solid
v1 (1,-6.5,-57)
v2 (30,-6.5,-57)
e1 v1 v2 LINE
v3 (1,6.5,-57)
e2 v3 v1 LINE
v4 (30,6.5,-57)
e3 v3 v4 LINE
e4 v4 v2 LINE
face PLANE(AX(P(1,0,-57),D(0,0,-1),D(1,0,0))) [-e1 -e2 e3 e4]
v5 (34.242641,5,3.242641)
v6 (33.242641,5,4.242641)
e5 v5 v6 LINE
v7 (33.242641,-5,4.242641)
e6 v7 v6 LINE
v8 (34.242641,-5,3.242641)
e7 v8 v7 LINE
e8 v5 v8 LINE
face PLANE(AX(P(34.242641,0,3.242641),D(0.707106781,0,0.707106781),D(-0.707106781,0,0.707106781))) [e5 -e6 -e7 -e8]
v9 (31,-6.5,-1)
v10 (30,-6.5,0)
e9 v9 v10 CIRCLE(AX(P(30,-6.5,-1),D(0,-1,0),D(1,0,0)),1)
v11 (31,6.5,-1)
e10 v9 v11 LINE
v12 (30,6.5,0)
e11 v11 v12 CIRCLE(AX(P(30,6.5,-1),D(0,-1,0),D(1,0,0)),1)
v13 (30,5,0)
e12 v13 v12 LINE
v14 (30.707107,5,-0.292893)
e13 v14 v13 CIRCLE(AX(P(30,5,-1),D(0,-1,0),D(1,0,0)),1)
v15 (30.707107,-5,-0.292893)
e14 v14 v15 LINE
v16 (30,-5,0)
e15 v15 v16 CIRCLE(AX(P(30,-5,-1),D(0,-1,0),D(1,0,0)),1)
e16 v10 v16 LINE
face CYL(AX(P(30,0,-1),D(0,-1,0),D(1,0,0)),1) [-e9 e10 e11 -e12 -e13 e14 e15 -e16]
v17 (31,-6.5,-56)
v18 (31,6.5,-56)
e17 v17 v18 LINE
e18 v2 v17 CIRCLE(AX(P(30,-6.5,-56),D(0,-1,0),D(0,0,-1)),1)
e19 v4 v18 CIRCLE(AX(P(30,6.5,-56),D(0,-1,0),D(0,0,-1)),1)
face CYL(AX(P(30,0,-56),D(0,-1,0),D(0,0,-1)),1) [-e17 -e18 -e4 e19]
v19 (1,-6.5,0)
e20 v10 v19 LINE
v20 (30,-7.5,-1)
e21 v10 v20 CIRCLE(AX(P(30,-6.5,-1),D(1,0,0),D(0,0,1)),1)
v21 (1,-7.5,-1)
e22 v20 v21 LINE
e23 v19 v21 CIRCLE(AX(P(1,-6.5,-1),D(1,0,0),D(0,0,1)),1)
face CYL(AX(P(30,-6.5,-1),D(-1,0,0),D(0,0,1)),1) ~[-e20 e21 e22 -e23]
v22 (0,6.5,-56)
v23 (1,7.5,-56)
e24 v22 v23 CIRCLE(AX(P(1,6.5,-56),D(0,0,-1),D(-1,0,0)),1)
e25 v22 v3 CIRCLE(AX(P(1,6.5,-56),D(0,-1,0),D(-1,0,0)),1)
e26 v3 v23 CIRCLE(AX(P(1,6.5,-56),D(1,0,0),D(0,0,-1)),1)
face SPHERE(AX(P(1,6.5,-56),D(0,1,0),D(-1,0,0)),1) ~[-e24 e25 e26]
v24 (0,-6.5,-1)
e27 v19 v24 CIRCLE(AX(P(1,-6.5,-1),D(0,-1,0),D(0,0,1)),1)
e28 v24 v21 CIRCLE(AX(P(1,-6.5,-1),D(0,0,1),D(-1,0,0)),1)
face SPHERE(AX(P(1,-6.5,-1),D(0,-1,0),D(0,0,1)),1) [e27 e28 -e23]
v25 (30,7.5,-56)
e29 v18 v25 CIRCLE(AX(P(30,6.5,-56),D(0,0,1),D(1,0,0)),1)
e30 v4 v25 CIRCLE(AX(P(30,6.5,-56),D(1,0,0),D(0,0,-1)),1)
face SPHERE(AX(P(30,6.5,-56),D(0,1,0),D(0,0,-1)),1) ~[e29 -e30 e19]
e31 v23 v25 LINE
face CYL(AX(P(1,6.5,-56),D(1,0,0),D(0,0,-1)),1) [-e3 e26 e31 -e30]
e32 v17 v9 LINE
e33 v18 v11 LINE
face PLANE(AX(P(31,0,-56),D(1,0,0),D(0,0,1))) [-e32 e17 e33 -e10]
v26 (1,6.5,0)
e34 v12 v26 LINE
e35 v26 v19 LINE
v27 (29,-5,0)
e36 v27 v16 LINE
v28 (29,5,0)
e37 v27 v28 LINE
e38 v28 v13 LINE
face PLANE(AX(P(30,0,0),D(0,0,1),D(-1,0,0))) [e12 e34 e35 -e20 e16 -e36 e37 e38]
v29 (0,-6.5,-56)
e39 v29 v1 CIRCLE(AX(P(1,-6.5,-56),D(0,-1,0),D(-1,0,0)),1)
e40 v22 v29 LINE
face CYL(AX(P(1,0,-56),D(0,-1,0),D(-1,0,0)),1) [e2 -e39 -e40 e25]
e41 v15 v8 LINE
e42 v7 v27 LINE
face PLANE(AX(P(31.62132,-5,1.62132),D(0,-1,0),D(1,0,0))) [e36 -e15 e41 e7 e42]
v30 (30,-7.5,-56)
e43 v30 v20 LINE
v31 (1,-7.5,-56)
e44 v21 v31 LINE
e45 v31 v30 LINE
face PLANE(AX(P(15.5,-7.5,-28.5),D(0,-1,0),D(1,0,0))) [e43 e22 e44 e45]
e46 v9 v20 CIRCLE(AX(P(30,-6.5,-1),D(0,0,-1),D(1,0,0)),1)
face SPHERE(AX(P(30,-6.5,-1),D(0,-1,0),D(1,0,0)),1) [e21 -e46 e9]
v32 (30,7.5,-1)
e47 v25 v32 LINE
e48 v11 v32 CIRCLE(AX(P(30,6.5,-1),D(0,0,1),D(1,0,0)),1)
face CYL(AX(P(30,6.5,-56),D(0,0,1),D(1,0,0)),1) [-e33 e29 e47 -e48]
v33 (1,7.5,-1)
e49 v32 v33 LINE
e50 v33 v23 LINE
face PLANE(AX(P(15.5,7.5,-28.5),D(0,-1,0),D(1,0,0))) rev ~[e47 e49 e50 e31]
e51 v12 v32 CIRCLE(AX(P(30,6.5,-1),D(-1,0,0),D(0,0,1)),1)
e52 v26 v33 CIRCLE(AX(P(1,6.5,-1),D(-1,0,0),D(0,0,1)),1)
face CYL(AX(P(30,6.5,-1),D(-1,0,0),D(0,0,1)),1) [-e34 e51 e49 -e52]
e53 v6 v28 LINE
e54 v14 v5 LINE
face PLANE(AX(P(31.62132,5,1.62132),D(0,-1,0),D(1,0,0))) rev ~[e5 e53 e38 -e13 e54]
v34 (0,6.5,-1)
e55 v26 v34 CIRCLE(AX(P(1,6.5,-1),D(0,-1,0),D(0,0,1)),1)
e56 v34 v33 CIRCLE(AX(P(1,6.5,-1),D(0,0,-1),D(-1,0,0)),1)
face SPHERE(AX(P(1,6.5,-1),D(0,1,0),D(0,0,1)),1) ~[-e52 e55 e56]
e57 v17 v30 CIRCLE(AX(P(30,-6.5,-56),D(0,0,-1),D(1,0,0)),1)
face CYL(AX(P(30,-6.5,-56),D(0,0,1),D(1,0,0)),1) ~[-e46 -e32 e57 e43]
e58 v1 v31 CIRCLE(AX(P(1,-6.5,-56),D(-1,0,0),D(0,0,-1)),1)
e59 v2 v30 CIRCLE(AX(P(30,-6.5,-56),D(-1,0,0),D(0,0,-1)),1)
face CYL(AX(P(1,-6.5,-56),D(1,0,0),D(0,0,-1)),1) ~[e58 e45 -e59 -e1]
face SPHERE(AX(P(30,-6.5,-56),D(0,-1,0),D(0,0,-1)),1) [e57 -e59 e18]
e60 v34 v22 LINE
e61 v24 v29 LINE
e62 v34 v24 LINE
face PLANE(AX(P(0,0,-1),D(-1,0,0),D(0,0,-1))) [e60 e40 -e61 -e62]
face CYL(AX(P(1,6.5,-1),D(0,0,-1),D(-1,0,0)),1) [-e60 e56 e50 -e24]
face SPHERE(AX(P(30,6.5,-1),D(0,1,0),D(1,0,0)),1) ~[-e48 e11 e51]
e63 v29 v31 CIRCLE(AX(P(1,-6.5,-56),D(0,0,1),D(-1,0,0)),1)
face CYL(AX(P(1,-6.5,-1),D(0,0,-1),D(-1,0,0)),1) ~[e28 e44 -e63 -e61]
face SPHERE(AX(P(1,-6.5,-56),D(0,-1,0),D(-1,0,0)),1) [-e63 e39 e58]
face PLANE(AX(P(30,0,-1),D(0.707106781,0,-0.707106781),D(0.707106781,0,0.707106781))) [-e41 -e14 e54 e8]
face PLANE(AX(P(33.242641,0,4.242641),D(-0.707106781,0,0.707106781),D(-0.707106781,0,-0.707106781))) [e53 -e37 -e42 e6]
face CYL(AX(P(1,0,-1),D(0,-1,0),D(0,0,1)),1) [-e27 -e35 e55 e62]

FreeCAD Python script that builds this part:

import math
import FreeCAD as App
import Part
import Sketcher
Q = App.Units.Quantity


def edges_at(feature, points):
    """Names of the edges that pass closest to the given points."""
    edges = feature.Shape.Edges
    near = lambda p: min(range(len(edges)), key=lambda i: edges[i].distToShape(Part.Vertex(*p))[0])
    return sorted({f"Edge{near(p) + 1}" for p in points})


def add_polygon(sketch, points):
    """Adds a closed chain of lines whose ends are joined by coincident constraints."""
    first, n = sketch.GeometryCount, len(points)
    for a, b in zip(points, points[1:] + points[:1]):
        sketch.addGeometry(Part.LineSegment(App.Vector(*a, 0), App.Vector(*b, 0)), False)
    for i in range(n):
        sketch.addConstraint(Sketcher.Constraint("Coincident", first + i, 2, first + (i + 1) % n, 1))

doc = App.newDocument("Part")
params = doc.addObject("Spreadsheet::Sheet", "Params")
for row, (alias, value) in enumerate([
    ("sketch1_radius", "1 mm"),
    ("sketch1_width", "29 mm"),
    ("sketch1_height", "55 mm"),
    ("pad1_length", "15 mm"),
    ("fillet_radius", "1 mm"),
    ("sketch2_length", "6 mm"),
    ("pad2_length", "10 mm"),
], start=1):
    params.set(f"A{row}", alias)
    params.set(f"B{row}", "=" + value)
    params.setAlias(f"B{row}", alias)

body = doc.addObject("PartDesign::Body", "Body")

sketch1 = body.newObject("Sketcher::SketchObject", "Sketch")
sketch1.AttachmentSupport = (doc.getObject("XZ_Plane"), [""])
sketch1.MapMode = "FlatFace"
sketch1.addGeometry(Part.LineSegment(App.Vector(30, 0, 0), App.Vector(1, 0, 0)), False)
sketch1.addGeometry(Part.ArcOfCircle(Part.Circle(App.Vector(1, -1, 0), App.Vector(0, 0, 1), 1), math.radians(90), math.radians(180)), False)
sketch1.addGeometry(Part.LineSegment(App.Vector(0, -1, 0), App.Vector(0, -56, 0)), False)
sketch1.addGeometry(Part.ArcOfCircle(Part.Circle(App.Vector(1, -56, 0), App.Vector(0, 0, 1), 1), math.radians(180), math.radians(270)), False)
sketch1.addGeometry(Part.LineSegment(App.Vector(1, -57, 0), App.Vector(30, -57, 0)), False)
sketch1.addGeometry(Part.ArcOfCircle(Part.Circle(App.Vector(30, -56, 0), App.Vector(0, 0, 1), 1), math.radians(-90), math.radians(0)), False)
sketch1.addGeometry(Part.LineSegment(App.Vector(31, -56, 0), App.Vector(31, -1, 0)), False)
sketch1.addGeometry(Part.ArcOfCircle(Part.Circle(App.Vector(30, -1, 0), App.Vector(0, 0, 1), 1), math.radians(0), math.radians(90)), False)
sketch1.addConstraint(Sketcher.Constraint("Tangent", 0, 2, 1, 1))
sketch1.addConstraint(Sketcher.Constraint("Tangent", 1, 2, 2, 1))
sketch1.addConstraint(Sketcher.Constraint("Tangent", 2, 2, 3, 1))
sketch1.addConstraint(Sketcher.Constraint("Tangent", 3, 2, 4, 1))
sketch1.addConstraint(Sketcher.Constraint("Tangent", 4, 2, 5, 1))
sketch1.addConstraint(Sketcher.Constraint("Tangent", 5, 2, 6, 1))
sketch1.addConstraint(Sketcher.Constraint("Tangent", 6, 2, 7, 1))
sketch1.addConstraint(Sketcher.Constraint("Tangent", 7, 2, 0, 1))
sketch1.addConstraint(Sketcher.Constraint("Horizontal", 0))
sketch1.addConstraint(Sketcher.Constraint("Vertical", 2))
sketch1.addConstraint(Sketcher.Constraint("Horizontal", 4))
sketch1.addConstraint(Sketcher.Constraint("Vertical", 6))
sketch1.addConstraint(Sketcher.Constraint("Equal", 1, 3))
sketch1.addConstraint(Sketcher.Constraint("Equal", 3, 5))
sketch1.addConstraint(Sketcher.Constraint("Equal", 5, 7))
sketch1.addConstraint(Sketcher.Constraint("PointOnObject", 0, 2, -1))
sketch1.addConstraint(Sketcher.Constraint("PointOnObject", 1, 2, -2))
sketch1.addConstraint(Sketcher.Constraint("Radius", 1, 1.0))
sketch1.addConstraint(Sketcher.Constraint("DistanceX", 0, 2, 0, 1, 29.0))
sketch1.addConstraint(Sketcher.Constraint("DistanceY", 2, 2, 2, 1, 55.0))
sketch1.setExpression("Constraints[17]", "Params.sketch1_radius")
sketch1.setExpression("Constraints[18]", "Params.sketch1_width")
sketch1.setExpression("Constraints[19]", "Params.sketch1_height")
pad1 = body.newObject("PartDesign::Pad", "Pad")
pad1.Profile = sketch1
pad1.setExpression("Length", "Params.pad1_length")
pad1.Midplane = True
doc.recompute()

fillet = body.newObject("PartDesign::Fillet", "Fillet")
fillet.Base = (pad1, edges_at(pad1, [
    (15.5, -7.5, 0),
    (0.293, -7.5, -0.293),
    (0, -7.5, -28.5),
    (0.293, -7.5, -56.707),
    (15.5, -7.5, -57),
    (30.707, -7.5, -56.707),
    (31, -7.5, -28.5),
    (30.707, -7.5, -0.293),
    (15.5, 7.5, 0),
    (0.293, 7.5, -0.293),
    (0, 7.5, -28.5),
    (0.293, 7.5, -56.707),
    (15.5, 7.5, -57),
    (30.707, 7.5, -56.707),
    (31, 7.5, -28.5),
    (30.707, 7.5, -0.293),
]))
fillet.setExpression("Radius", "Params.fillet_radius")

sketch2 = body.newObject("Sketcher::SketchObject", "Sketch001")
sketch2.AttachmentSupport = (doc.getObject("XZ_Plane"), [""])
sketch2.MapMode = "FlatFace"
add_polygon(sketch2, [(29, 0), (30, -1), (34.242641, 3.242641), (33.242641, 4.242641)])
sketch2.addConstraint(Sketcher.Constraint("PointOnObject", 3, 2, -1))
sketch2.addConstraint(Sketcher.Constraint("Perpendicular", 0, 1))
sketch2.addConstraint(Sketcher.Constraint("Perpendicular", 1, 2))
sketch2.addConstraint(Sketcher.Constraint("Perpendicular", 2, 3))
sketch2.addConstraint(Sketcher.Constraint("Angle", 0, Q("-45 deg")))
sketch2.addConstraint(Sketcher.Constraint("Distance", 1, 6.0))
sketch2.addConstraint(Sketcher.Constraint("DistanceX", -1, 1, 0, 2, 30.0))
sketch2.addConstraint(Sketcher.Constraint("DistanceY", 0, 2, -1, 1, 1.0))
sketch2.setExpression("Constraints[9]", "Params.sketch2_length")
pad2 = body.newObject("PartDesign::Pad", "Pad001")
pad2.Profile = sketch2
pad2.setExpression("Length", "Params.pad2_length")
pad2.Midplane = True

doc.recompute()
